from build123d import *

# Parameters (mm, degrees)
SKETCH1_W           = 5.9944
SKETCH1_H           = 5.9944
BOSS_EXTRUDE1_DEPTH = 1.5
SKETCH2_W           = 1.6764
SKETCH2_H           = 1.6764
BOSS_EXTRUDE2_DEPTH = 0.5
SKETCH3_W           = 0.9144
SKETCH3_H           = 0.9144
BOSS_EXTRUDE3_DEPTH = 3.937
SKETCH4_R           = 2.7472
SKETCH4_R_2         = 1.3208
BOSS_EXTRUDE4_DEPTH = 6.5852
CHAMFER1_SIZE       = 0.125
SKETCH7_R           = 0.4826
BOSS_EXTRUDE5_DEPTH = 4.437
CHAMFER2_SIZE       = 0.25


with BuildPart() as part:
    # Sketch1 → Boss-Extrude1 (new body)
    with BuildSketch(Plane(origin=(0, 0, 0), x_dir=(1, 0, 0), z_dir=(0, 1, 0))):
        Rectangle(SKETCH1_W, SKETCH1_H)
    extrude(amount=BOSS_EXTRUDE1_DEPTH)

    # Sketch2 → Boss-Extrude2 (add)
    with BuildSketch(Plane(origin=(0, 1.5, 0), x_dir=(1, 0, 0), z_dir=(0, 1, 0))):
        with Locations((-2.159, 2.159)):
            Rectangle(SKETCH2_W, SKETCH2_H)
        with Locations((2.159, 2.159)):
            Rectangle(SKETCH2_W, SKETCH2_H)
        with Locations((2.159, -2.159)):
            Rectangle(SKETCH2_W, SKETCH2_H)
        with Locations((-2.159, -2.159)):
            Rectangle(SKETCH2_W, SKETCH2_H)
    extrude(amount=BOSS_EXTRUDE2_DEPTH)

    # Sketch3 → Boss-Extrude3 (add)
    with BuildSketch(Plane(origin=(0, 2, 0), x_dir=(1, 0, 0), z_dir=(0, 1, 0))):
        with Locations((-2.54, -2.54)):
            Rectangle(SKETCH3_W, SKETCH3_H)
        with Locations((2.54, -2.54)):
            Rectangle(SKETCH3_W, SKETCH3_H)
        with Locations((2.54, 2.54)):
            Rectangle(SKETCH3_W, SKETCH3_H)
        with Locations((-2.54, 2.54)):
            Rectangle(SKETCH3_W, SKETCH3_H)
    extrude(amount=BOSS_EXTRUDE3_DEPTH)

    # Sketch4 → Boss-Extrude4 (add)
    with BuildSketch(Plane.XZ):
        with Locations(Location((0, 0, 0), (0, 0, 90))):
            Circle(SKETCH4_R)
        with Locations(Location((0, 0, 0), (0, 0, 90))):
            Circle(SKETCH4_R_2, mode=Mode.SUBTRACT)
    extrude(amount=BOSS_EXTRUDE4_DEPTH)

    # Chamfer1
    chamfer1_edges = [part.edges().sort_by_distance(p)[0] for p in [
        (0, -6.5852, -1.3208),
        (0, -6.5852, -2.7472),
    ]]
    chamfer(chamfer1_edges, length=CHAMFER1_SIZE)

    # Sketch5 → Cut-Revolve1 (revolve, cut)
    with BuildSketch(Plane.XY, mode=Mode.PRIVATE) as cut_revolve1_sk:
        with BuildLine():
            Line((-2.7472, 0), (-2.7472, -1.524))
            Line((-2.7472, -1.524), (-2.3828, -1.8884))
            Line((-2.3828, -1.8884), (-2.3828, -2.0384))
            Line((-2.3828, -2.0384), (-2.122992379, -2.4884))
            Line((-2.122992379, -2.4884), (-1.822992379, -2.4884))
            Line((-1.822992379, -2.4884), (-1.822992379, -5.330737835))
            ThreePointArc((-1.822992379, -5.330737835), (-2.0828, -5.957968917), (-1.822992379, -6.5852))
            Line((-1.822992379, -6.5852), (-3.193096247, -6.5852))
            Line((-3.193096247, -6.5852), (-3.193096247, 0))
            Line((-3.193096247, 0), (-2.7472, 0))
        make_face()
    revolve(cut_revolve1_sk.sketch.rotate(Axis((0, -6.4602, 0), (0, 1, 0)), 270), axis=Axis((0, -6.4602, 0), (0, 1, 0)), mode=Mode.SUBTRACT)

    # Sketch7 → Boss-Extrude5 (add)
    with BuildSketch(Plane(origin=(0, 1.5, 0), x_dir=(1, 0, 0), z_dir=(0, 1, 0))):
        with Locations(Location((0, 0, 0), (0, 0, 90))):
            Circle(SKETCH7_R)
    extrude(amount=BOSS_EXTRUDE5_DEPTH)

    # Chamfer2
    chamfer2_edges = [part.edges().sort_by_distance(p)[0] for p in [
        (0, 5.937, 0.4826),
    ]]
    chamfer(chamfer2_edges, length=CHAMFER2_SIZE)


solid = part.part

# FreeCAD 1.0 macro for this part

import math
import FreeCAD as App
import Part
import Sketcher

V = App.Vector
Q = App.Units.Quantity


def edges_at(feature, points):
    """Names of the edges that pass closest to the given points."""
    edges = feature.Shape.Edges
    near = lambda p: min(range(len(edges)), key=lambda i: edges[i].distToShape(Part.Vertex(*p))[0])
    return sorted({f"Edge{near(p) + 1}" for p in points})


def add_polygon(sketch, points):
    """Adds a closed chain of lines whose ends are joined by coincident constraints."""
    first, n = sketch.GeometryCount, len(points)
    for a, b in zip(points, points[1:] + points[:1]):
        sketch.addGeometry(Part.LineSegment(App.Vector(*a, 0), App.Vector(*b, 0)), False)
    for i in range(n):
        sketch.addConstraint(Sketcher.Constraint("Coincident", first + i, 2, first + (i + 1) % n, 1))

doc = App.newDocument("Part")
params = doc.addObject("Spreadsheet::Sheet", "Params")
for row, (alias, value) in enumerate([
    ("sketch1_width", "0.236 in"),
    ("pad1_length", "1.5 mm"),
    ("sketch2_width", "0.066 in"),
    ("pad2_length", "0.5 mm"),
    ("sketch3_width", "0.036 in"),
    ("pad3_length", "0.155 in"),
    ("sketch4_diameter", "0.104 in"),
    ("pad4_length", "6.5852 mm"),
    ("chamfer_size", "0.125 mm"),
    ("sketch5_height", "0.06 in"),
    ("groove_angle", "360 deg"),
    ("sketch6_diameter", "0.038 in"),
    ("pad5_length", "4.437 mm"),
    ("chamfer2_size", "0.25 mm"),
], start=1):
    params.set(f"A{row}", alias)
    params.set(f"B{row}", "=" + value)
    params.setAlias(f"B{row}", alias)

body = doc.addObject("PartDesign::Body", "Body")

sketch1 = body.newObject("Sketcher::SketchObject", "Sketch")
sketch1.AttachmentSupport = (doc.getObject("XZ_Plane"), [""])
sketch1.MapMode = "FlatFace"
add_polygon(sketch1, [(-3, -3), (-3, 3), (3, 3), (3, -3)])
sketch1.addConstraint(Sketcher.Constraint("Vertical", 0))
sketch1.addConstraint(Sketcher.Constraint("Horizontal", 1))
sketch1.addConstraint(Sketcher.Constraint("Vertical", 2))
sketch1.addConstraint(Sketcher.Constraint("Horizontal", 3))
sketch1.addConstraint(Sketcher.Constraint("Symmetric", 0, 2, 2, 2, -1, 1))
sketch1.addConstraint(Sketcher.Constraint("Equal", 3, 0))
sketch1.addConstraint(Sketcher.Constraint("DistanceX", 1, 1, 1, 2, Q("0.236 in")))
sketch1.setExpression("Constraints[10]", "Params.sketch1_width")
pad1 = body.newObject("PartDesign::Pad", "Pad")
pad1.Profile = sketch1
pad1.setExpression("Length", "Params.pad1_length")
pad1.Reversed = True

sketch2 = body.newObject("Sketcher::SketchObject", "Sketch001")
sketch2.AttachmentSupport = (doc.getObject("XZ_Plane"), [""])
sketch2.MapMode = "FlatFace"
sketch2.AttachmentOffset = App.Placement(V(0, 0, -1.5), App.Rotation())
add_polygon(sketch2, [(-3, -3), (-3, -1.3), (-1.3, -1.3), (-1.3, -3)])
add_polygon(sketch2, [(1.3, -3), (1.3, -1.3), (3, -1.3), (3, -3)])
add_polygon(sketch2, [(1.3, 1.3), (1.3, 3), (3, 3), (3, 1.3)])
add_polygon(sketch2, [(-3, 1.3), (-3, 3), (-1.3, 3), (-1.3, 1.3)])
sketch2.addConstraint(Sketcher.Constraint("Vertical", 0))
sketch2.addConstraint(Sketcher.Constraint("Horizontal", 1))
sketch2.addConstraint(Sketcher.Constraint("Vertical", 2))
sketch2.addConstraint(Sketcher.Constraint("Horizontal", 3))
sketch2.addConstraint(Sketcher.Constraint("Vertical", 4))
sketch2.addConstraint(Sketcher.Constraint("Horizontal", 5))
sketch2.addConstraint(Sketcher.Constraint("Vertical", 6))
sketch2.addConstraint(Sketcher.Constraint("Horizontal", 7))
sketch2.addConstraint(Sketcher.Constraint("Vertical", 8))
sketch2.addConstraint(Sketcher.Constraint("Horizontal", 9))
sketch2.addConstraint(Sketcher.Constraint("Vertical", 10))
sketch2.addConstraint(Sketcher.Constraint("Horizontal", 11))
sketch2.addConstraint(Sketcher.Constraint("Vertical", 12))
sketch2.addConstraint(Sketcher.Constraint("Horizontal", 13))
sketch2.addConstraint(Sketcher.Constraint("Vertical", 14))
sketch2.addConstraint(Sketcher.Constraint("Horizontal", 15))
sketch2.addConstraint(Sketcher.Constraint("Symmetric", 2, 2, 8, 2, -1, 1))
sketch2.addConstraint(Sketcher.Constraint("Symmetric", 0, 2, 10, 2, -1, 1))
sketch2.addConstraint(Sketcher.Constraint("Symmetric", 6, 2, 12, 2, -1, 1))
sketch2.addConstraint(Sketcher.Constraint("Symmetric", 4, 2, 14, 2, -1, 1))
sketch2.addConstraint(Sketcher.Constraint("Symmetric", 1, 2, 4, 2, -2))
sketch2.addConstraint(Sketcher.Constraint("Symmetric", 3, 2, 6, 2, -2))
sketch2.addConstraint(Sketcher.Constraint("Equal", 15, 0))
sketch2.addConstraint(Sketcher.Constraint("DistanceX", 1, 1, 1, 2, Q("0.066 in")))
sketch2.addConstraint(Sketcher.Constraint("DistanceX", 0, 2, 4, 2, Q("0.17 in")))
sketch2.addConstraint(Sketcher.Constraint("DistanceY", 4, 2, 8, 2, Q("0.17 in")))
sketch2.setExpression("Constraints[39]", "Params.sketch2_width")
pad2 = body.newObject("PartDesign::Pad", "Pad001")
pad2.Profile = sketch2
pad2.setExpression("Length", "Params.pad2_length")
pad2.Reversed = True

sketch3 = body.newObject("Sketcher::SketchObject", "Sketch002")
sketch3.AttachmentSupport = (doc.getObject("XZ_Plane"), [""])
sketch3.MapMode = "FlatFace"
sketch3.AttachmentOffset = App.Placement(V(0, 0, -2), App.Rotation())
add_polygon(sketch3, [(-3, 2.1), (-3, 3), (-2.1, 3), (-2.1, 2.1)])
add_polygon(sketch3, [(2.1, 2.1), (2.1, 3), (3, 3), (3, 2.1)])
add_polygon(sketch3, [(2.1, -3), (2.1, -2.1), (3, -2.1), (3, -3)])
add_polygon(sketch3, [(-3, -3), (-3, -2.1), (-2.1, -2.1), (-2.1, -3)])
sketch3.addConstraint(Sketcher.Constraint("Vertical", 0))
sketch3.addConstraint(Sketcher.Constraint("Horizontal", 1))
sketch3.addConstraint(Sketcher.Constraint("Vertical", 2))
sketch3.addConstraint(Sketcher.Constraint("Horizontal", 3))
sketch3.addConstraint(Sketcher.Constraint("Vertical", 4))
sketch3.addConstraint(Sketcher.Constraint("Horizontal", 5))
sketch3.addConstraint(Sketcher.Constraint("Vertical", 6))
sketch3.addConstraint(Sketcher.Constraint("Horizontal", 7))
sketch3.addConstraint(Sketcher.Constraint("Vertical", 8))
sketch3.addConstraint(Sketcher.Constraint("Horizontal", 9))
sketch3.addConstraint(Sketcher.Constraint("Vertical", 10))
sketch3.addConstraint(Sketcher.Constraint("Horizontal", 11))
sketch3.addConstraint(Sketcher.Constraint("Vertical", 12))
sketch3.addConstraint(Sketcher.Constraint("Horizontal", 13))
sketch3.addConstraint(Sketcher.Constraint("Vertical", 14))
sketch3.addConstraint(Sketcher.Constraint("Horizontal", 15))
sketch3.addConstraint(Sketcher.Constraint("Symmetric", 2, 2, 8, 2, -1, 1))
sketch3.addConstraint(Sketcher.Constraint("Symmetric", 0, 2, 10, 2, -1, 1))
sketch3.addConstraint(Sketcher.Constraint("Symmetric", 6, 2, 12, 2, -1, 1))
sketch3.addConstraint(Sketcher.Constraint("Symmetric", 4, 2, 14, 2, -1, 1))
sketch3.addConstraint(Sketcher.Constraint("Symmetric", 1, 2, 4, 2, -2))
sketch3.addConstraint(Sketcher.Constraint("Symmetric", 3, 2, 6, 2, -2))
sketch3.addConstraint(Sketcher.Constraint("Equal", 15, 0))
sketch3.addConstraint(Sketcher.Constraint("DistanceX", 0, 2, 4, 2, Q("0.2 in")))
sketch3.addConstraint(Sketcher.Constraint("DistanceY", 8, 2, 4, 2, Q("0.2 in")))
sketch3.addConstraint(Sketcher.Constraint("DistanceX", 1, 1, 1, 2, Q("0.036 in")))
sketch3.setExpression("Constraints[41]", "Params.sketch3_width")
pad3 = body.newObject("PartDesign::Pad", "Pad002")
pad3.Profile = sketch3
pad3.setExpression("Length", "Params.pad3_length")
pad3.Reversed = True

sketch4 = body.newObject("Sketcher::SketchObject", "Sketch003")
sketch4.AttachmentSupport = (doc.getObject("XZ_Plane"), [""])
sketch4.MapMode = "FlatFace"
sketch4.addGeometry(Part.Circle(V(0, 0, 0), V(0, 0, 1), 2.7), False)
sketch4.addGeometry(Part.Circle(V(0, 0, 0), V(0, 0, 1), 1.3), False)
sketch4.addConstraint(Sketcher.Constraint("Coincident", 0, 3, -1, 1))
sketch4.addConstraint(Sketcher.Constraint("Coincident", 1, 3, -1, 1))
sketch4.addConstraint(Sketcher.Constraint("Diameter", 1, Q("0.104 in")))
sketch4.addConstraint(Sketcher.Constraint("Diameter", 0, Q("5.4944 mm")))
sketch4.setExpression("Constraints[2]", "Params.sketch4_diameter")
pad4 = body.newObject("PartDesign::Pad", "Pad003")
pad4.Profile = sketch4
pad4.setExpression("Length", "Params.pad4_length")
doc.recompute()

chamfer = body.newObject("PartDesign::Chamfer", "Chamfer")
chamfer.Base = (pad4, edges_at(pad4, [(0, -6.585, -1.321), (0, -6.585, -2.747)]))
chamfer.setExpression("Size", "Params.chamfer_size")

sketch5 = body.newObject("Sketcher::SketchObject", "Sketch004")
sketch5.AttachmentSupport = (doc.getObject("XY_Plane"), [""])
sketch5.MapMode = "FlatFace"
sketch5.addGeometry(Part.LineSegment(V(-2.75, -1.52, 0), V(-2.75, 0, 0)), False)
sketch5.addGeometry(Part.LineSegment(V(-2.75, 0, 0), V(-3.19, 0, 0)), False)
sketch5.addGeometry(Part.LineSegment(V(-3.19, 0, 0), V(-3.19, -6.59, 0)), False)
sketch5.addGeometry(Part.LineSegment(V(-3.19, -6.59, 0), V(-1.82, -6.59, 0)), False)
sketch5.addGeometry(Part.ArcOfCircle(Part.Circle(V(-1.2, -5.96, 0), V(0, 0, 1), 0.89), math.radians(135), math.radians(225)), False)
sketch5.addGeometry(Part.LineSegment(V(-1.82, -5.33, 0), V(-1.82, -2.49, 0)), False)
sketch5.addGeometry(Part.LineSegment(V(-1.82, -2.49, 0), V(-2.12, -2.49, 0)), False)
sketch5.addGeometry(Part.LineSegment(V(-2.12, -2.49, 0), V(-2.38, -2.04, 0)), False)
sketch5.addGeometry(Part.LineSegment(V(-2.38, -2.04, 0), V(-2.38, -1.89, 0)), False)
sketch5.addGeometry(Part.LineSegment(V(-2.38, -1.89, 0), V(-2.75, -1.52, 0)), False)
sketch5.addConstraint(Sketcher.Constraint("Coincident", 0, 2, 1, 1))
sketch5.addConstraint(Sketcher.Constraint("Coincident", 1, 2, 2, 1))
sketch5.addConstraint(Sketcher.Constraint("Coincident", 2, 2, 3, 1))
sketch5.addConstraint(Sketcher.Constraint("Coincident", 3, 2, 4, 2))
sketch5.addConstraint(Sketcher.Constraint("Coincident", 4, 1, 5, 1))
sketch5.addConstraint(Sketcher.Constraint("Coincident", 5, 2, 6, 1))
sketch5.addConstraint(Sketcher.Constraint("Coincident", 6, 2, 7, 1))
sketch5.addConstraint(Sketcher.Constraint("Coincident", 7, 2, 8, 1))
sketch5.addConstraint(Sketcher.Constraint("Coincident", 8, 2, 9, 1))
sketch5.addConstraint(Sketcher.Constraint("Coincident", 9, 2, 0, 1))
sketch5.addConstraint(Sketcher.Constraint("Vertical", 0))
sketch5.addConstraint(Sketcher.Constraint("Horizontal", 1))
sketch5.addConstraint(Sketcher.Constraint("Vertical", 2))
sketch5.addConstraint(Sketcher.Constraint("Horizontal", 3))
sketch5.addConstraint(Sketcher.Constraint("Vertical", 5))
sketch5.addConstraint(Sketcher.Constraint("Horizontal", 6))
sketch5.addConstraint(Sketcher.Constraint("Vertical", 8))
sketch5.addConstraint(Sketcher.Constraint("PointOnObject", 0, 2, -1))
sketch5.addConstraint(Sketcher.Constraint("Vertical", 3, 2, 4, 1))
sketch5.addConstraint(Sketcher.Constraint("Angle", 7, Q("120 deg")))
sketch5.addConstraint(Sketcher.Constraint("Angle", 9, Q("135 deg")))
sketch5.addConstraint(Sketcher.Constraint("DistanceY", 0, 1, 0, 2, Q("0.06 in")))
sketch5.addConstraint(Sketcher.Constraint("Radius", 4, Q("0.887039 mm")))
sketch5.addConstraint(Sketcher.Constraint("DistanceX", 6, 2, 6, 1, Q("0.3 mm")))
sketch5.addConstraint(Sketcher.Constraint("DistanceY", 2, 2, 2, 1, Q("6.5852 mm")))
sketch5.addConstraint(Sketcher.Constraint("DistanceY", 8, 1, 8, 2, Q("0.15 mm")))
sketch5.addConstraint(Sketcher.Constraint("DistanceX", 0, 2, -1, 1, Q("2.7472 mm")))
sketch5.addConstraint(Sketcher.Constraint("DistanceY", 5, 2, -1, 1, Q("2.4884 mm")))
sketch5.addConstraint(Sketcher.Constraint("DistanceX", 7, 2, -1, 1, Q("2.3828 mm")))
sketch5.addConstraint(Sketcher.Constraint("DistanceX", 1, 2, 1, 1, Q("0.445896 mm")))
sketch5.addConstraint(Sketcher.Constraint("DistanceY", 5, 1, 5, 2, Q("2.842338 mm")))
sketch5.setExpression("Constraints[21]", "Params.sketch5_height")
groove = body.newObject("PartDesign::Groove", "Groove")
groove.Profile = sketch5
groove.ReferenceAxis = (sketch5, ["V_Axis"])
groove.setExpression("Angle", "Params.groove_angle")

sketch6 = body.newObject("Sketcher::SketchObject", "Sketch005")
sketch6.AttachmentSupport = (doc.getObject("XZ_Plane"), [""])
sketch6.MapMode = "FlatFace"
sketch6.AttachmentOffset = App.Placement(V(0, 0, -1.5), App.Rotation())
sketch6.addGeometry(Part.Circle(V(0, 0, 0), V(0, 0, 1), 0.48), False)
sketch6.addConstraint(Sketcher.Constraint("Coincident", 0, 3, -1, 1))
sketch6.addConstraint(Sketcher.Constraint("Diameter", 0, Q("0.038 in")))
sketch6.setExpression("Constraints[1]", "Params.sketch6_diameter")
pad5 = body.newObject("PartDesign::Pad", "Pad004")
pad5.Profile = sketch6
pad5.setExpression("Length", "Params.pad5_length")
pad5.Reversed = True
doc.recompute()

chamfer2 = body.newObject("PartDesign::Chamfer", "Chamfer001")
chamfer2.Base = (pad5, edges_at(pad5, [(0, 5.937, 0.483)]))
chamfer2.setExpression("Size", "Params.chamfer2_size")

doc.recompute()
